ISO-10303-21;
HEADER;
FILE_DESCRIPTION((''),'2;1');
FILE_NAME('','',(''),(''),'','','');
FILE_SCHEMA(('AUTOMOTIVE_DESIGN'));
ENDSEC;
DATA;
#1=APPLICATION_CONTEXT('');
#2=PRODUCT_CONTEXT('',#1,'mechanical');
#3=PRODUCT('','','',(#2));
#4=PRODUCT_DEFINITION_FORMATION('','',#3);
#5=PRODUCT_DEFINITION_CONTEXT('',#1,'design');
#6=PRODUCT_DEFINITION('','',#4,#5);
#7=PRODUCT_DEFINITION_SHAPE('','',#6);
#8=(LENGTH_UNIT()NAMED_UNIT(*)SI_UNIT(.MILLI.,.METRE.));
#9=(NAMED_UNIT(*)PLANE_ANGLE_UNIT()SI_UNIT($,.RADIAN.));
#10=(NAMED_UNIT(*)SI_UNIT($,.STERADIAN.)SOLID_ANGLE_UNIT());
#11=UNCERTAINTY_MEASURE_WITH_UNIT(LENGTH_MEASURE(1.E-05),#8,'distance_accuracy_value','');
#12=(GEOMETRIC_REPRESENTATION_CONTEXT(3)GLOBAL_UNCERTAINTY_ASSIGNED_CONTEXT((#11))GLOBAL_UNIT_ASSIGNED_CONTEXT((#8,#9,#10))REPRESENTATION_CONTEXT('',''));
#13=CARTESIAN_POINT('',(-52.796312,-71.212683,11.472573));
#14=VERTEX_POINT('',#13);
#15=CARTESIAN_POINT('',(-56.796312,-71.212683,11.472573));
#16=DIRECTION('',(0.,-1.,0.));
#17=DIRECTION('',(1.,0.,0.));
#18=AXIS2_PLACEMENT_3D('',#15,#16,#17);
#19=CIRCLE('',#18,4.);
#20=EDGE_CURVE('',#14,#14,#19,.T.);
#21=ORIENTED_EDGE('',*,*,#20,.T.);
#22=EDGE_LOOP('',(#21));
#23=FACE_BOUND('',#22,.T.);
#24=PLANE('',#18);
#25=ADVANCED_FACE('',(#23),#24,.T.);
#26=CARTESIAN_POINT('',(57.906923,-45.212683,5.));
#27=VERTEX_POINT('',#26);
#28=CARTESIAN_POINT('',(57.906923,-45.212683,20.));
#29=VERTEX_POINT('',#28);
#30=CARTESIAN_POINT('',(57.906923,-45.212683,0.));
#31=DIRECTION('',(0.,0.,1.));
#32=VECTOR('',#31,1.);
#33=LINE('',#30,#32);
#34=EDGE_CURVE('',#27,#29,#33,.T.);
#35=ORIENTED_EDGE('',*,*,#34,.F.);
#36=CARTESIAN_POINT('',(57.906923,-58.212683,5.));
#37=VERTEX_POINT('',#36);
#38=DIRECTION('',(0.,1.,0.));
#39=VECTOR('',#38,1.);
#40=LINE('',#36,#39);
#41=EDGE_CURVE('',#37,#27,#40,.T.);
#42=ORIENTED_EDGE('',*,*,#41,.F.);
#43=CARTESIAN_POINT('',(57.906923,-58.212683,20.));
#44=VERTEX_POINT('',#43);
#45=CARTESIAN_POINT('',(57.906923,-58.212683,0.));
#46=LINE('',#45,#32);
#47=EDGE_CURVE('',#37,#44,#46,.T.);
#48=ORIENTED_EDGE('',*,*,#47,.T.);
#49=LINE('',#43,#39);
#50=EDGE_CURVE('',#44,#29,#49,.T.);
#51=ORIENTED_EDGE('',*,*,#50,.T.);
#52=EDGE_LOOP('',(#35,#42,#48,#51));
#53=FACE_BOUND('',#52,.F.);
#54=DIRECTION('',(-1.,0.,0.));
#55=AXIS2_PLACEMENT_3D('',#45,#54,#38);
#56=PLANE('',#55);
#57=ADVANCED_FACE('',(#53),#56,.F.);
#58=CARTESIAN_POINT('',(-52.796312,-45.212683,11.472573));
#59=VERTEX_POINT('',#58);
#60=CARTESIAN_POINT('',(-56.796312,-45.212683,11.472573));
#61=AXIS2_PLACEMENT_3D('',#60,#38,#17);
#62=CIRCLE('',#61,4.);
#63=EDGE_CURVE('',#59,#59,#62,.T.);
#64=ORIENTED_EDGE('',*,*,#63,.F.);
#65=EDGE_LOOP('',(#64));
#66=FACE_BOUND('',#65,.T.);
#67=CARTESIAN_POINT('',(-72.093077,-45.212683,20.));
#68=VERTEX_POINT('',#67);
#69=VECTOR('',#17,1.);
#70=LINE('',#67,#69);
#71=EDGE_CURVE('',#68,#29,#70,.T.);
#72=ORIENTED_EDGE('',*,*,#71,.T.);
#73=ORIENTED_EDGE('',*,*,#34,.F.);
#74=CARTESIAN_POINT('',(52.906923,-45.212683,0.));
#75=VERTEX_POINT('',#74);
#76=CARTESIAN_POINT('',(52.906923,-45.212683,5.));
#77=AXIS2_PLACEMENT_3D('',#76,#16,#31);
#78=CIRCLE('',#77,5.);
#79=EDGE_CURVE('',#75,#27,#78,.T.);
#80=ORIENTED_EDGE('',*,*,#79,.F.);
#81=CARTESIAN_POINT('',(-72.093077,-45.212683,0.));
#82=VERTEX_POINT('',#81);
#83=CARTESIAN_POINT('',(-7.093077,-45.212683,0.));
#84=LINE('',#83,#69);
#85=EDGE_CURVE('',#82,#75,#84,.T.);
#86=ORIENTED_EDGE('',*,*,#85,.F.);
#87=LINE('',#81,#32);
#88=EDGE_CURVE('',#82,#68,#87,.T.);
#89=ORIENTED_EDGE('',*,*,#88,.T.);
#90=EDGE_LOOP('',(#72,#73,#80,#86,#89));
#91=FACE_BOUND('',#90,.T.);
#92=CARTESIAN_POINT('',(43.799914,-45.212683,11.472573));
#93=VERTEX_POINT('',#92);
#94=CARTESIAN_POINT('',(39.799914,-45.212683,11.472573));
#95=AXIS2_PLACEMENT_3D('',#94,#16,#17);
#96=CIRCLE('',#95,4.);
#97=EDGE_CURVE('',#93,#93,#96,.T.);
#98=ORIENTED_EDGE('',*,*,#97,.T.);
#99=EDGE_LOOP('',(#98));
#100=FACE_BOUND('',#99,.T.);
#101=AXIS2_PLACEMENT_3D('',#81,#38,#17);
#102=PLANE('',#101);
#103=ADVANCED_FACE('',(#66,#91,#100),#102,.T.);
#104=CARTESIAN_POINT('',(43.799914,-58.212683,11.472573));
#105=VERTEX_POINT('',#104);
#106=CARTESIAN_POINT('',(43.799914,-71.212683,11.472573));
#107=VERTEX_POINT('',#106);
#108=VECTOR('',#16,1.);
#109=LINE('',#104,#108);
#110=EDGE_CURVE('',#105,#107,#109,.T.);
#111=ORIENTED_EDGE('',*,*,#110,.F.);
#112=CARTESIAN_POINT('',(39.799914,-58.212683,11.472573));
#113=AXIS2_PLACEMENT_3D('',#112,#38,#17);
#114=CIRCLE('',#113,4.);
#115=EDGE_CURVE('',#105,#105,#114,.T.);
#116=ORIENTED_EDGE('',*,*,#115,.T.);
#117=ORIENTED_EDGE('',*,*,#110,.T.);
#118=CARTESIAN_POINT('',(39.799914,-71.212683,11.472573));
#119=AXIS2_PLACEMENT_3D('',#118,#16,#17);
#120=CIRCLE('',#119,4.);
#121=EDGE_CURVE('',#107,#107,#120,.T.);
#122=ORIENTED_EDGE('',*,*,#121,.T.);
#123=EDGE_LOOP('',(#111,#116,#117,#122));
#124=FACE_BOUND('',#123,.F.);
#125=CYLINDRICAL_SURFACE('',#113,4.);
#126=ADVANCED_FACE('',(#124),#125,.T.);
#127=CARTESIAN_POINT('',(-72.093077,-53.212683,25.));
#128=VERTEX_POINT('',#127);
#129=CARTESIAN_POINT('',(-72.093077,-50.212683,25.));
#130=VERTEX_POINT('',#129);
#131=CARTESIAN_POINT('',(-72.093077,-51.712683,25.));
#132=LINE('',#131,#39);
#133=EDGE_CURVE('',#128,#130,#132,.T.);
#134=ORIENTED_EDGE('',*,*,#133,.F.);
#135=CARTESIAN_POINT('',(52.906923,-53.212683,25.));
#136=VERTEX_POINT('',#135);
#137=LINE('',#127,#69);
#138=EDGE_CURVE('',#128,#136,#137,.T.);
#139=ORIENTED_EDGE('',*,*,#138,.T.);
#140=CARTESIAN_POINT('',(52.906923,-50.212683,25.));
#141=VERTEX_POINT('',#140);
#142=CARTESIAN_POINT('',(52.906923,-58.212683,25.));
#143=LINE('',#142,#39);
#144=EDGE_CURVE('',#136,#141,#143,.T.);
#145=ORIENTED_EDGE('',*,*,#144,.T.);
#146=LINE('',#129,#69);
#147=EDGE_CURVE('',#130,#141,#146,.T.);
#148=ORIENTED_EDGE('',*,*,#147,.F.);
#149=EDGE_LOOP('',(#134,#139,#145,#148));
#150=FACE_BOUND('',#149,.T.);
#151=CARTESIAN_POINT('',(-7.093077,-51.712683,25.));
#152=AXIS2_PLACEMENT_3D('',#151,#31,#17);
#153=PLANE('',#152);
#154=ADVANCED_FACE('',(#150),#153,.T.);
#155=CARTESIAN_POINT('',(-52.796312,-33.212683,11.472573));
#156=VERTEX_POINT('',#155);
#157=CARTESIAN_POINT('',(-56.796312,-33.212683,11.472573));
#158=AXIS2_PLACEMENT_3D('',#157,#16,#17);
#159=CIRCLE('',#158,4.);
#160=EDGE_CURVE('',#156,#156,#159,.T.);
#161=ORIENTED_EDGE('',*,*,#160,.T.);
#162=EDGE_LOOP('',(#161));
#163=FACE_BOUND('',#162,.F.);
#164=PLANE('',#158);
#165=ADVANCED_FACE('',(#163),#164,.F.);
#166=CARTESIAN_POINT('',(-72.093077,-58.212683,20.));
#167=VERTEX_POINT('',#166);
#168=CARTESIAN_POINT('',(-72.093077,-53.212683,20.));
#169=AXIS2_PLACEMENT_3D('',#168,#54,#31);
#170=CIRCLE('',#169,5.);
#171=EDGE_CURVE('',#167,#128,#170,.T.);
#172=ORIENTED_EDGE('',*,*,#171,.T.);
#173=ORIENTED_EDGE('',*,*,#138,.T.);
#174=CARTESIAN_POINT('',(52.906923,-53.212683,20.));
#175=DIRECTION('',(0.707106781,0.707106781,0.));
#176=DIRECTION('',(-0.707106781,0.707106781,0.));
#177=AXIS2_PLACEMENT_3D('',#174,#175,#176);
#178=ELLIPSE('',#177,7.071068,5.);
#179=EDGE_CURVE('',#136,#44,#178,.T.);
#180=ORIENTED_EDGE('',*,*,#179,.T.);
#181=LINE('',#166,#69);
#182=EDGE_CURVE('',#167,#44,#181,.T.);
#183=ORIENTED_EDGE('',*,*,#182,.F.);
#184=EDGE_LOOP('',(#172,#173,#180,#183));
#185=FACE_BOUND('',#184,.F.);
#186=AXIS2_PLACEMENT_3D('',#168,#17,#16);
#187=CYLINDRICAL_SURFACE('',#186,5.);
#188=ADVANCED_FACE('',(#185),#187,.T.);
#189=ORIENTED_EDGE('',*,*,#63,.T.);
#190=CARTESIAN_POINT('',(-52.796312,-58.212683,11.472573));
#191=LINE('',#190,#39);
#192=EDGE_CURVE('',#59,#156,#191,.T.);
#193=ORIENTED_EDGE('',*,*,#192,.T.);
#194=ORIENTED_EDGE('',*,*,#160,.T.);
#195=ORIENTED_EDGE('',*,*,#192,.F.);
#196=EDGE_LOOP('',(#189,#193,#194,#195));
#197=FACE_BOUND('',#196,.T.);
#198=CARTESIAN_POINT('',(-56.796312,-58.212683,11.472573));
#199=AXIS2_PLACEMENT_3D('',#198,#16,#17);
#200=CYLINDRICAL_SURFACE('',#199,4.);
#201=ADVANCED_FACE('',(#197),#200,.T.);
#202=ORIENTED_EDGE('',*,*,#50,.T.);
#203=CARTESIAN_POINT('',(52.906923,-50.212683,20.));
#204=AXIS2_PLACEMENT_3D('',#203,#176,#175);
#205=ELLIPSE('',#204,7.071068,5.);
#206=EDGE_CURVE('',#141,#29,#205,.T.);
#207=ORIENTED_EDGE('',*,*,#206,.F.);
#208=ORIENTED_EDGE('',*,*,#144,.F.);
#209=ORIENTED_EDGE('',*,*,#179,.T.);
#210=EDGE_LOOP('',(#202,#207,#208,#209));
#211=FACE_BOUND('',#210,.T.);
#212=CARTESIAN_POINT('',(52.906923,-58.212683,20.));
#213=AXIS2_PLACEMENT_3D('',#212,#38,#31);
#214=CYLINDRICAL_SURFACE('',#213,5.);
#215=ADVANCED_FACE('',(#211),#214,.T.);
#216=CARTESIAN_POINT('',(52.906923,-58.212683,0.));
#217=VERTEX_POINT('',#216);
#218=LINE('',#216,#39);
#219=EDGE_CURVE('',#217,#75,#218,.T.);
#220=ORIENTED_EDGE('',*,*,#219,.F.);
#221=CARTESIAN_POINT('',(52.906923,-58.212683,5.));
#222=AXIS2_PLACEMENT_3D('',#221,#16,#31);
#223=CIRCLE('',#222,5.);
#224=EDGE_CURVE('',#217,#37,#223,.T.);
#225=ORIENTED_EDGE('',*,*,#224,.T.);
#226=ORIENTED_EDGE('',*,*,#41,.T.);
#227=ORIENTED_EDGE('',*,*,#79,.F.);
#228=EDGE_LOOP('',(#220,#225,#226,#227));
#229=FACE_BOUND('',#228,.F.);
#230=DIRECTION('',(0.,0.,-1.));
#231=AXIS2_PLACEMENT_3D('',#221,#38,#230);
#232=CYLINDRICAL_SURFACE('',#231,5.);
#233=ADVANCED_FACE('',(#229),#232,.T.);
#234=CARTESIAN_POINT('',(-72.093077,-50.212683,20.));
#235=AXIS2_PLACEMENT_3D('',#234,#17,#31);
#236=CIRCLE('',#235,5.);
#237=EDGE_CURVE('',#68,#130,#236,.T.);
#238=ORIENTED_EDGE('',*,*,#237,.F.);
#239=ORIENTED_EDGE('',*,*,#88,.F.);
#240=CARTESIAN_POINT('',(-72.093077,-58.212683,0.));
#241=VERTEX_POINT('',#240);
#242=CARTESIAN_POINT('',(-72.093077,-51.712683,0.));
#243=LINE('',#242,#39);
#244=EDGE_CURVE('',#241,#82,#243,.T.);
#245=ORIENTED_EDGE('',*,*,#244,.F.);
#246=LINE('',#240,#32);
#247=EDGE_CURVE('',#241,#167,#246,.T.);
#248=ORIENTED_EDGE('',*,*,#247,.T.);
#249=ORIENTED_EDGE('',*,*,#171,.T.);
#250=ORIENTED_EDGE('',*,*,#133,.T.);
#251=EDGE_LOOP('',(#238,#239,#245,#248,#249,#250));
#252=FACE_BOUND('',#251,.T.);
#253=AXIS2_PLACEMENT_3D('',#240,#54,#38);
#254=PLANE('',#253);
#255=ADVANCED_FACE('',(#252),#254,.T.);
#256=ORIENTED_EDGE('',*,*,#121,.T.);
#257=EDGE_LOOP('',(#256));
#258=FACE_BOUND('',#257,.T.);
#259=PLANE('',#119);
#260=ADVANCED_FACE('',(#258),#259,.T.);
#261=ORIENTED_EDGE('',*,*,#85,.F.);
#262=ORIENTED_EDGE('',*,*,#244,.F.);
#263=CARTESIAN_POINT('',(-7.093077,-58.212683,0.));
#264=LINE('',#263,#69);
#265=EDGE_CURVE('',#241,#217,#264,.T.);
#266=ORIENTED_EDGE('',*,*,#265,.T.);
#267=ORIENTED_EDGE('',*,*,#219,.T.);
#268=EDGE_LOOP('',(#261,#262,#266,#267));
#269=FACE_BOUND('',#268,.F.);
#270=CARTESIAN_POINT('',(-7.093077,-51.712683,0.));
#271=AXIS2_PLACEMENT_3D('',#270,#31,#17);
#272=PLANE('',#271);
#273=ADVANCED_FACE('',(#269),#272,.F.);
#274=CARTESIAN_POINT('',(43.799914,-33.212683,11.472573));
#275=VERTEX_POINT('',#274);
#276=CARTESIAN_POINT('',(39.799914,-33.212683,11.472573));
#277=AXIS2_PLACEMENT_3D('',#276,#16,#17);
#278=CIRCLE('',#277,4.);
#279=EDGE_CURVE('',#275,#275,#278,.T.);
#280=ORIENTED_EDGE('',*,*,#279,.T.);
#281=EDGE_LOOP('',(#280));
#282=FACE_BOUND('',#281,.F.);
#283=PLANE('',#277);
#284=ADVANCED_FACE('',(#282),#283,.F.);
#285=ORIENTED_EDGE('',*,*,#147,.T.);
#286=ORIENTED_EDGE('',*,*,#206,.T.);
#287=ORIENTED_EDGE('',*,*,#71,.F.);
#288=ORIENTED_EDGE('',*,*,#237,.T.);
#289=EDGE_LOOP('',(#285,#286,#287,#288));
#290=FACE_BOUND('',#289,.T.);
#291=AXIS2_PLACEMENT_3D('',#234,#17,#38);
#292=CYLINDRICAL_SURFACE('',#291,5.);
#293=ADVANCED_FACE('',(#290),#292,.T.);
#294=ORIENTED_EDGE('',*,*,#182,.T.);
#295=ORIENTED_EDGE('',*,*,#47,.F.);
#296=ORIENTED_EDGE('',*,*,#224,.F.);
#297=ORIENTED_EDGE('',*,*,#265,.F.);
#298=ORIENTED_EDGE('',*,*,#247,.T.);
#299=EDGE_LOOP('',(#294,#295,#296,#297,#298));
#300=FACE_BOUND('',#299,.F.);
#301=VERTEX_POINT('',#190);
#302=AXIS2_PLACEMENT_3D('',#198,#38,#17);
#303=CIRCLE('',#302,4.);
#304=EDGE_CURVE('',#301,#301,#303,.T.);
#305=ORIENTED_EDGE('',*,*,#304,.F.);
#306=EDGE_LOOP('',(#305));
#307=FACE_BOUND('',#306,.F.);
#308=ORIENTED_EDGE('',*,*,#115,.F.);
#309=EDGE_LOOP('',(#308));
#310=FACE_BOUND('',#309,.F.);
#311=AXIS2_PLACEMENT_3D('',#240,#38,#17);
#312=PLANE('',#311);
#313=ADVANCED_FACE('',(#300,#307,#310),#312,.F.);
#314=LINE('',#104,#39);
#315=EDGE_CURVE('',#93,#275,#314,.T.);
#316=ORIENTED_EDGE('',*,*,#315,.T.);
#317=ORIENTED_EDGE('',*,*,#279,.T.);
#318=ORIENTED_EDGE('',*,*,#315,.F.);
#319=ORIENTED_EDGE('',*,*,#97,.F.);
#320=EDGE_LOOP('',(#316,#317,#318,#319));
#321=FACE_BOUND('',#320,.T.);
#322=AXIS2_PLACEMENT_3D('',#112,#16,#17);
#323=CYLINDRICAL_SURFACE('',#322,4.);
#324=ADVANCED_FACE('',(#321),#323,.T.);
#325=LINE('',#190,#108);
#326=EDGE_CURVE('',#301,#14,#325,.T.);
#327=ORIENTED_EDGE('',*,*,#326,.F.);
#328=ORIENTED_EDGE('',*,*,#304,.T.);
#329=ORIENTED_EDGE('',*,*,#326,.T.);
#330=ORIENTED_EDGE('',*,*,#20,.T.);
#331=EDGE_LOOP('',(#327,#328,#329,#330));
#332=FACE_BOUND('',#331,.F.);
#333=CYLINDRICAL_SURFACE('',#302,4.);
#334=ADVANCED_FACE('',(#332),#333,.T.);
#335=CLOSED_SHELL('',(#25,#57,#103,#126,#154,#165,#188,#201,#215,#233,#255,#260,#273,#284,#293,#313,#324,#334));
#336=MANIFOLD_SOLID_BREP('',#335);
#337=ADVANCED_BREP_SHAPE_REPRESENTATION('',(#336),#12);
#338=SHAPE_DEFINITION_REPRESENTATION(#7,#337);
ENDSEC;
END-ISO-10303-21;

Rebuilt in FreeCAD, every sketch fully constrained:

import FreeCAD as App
import Part
import Sketcher
Q = App.Units.Quantity


def edges_at(feature, points):
    """Names of the edges that pass closest to the given points."""
    edges = feature.Shape.Edges
    near = lambda p: min(range(len(edges)), key=lambda i: edges[i].distToShape(Part.Vertex(*p))[0])
    return sorted({f"Edge{near(p) + 1}" for p in points})

doc = App.newDocument("Part")
body = doc.addObject("PartDesign::Body", "Body")

sketch1 = body.newObject("Sketcher::SketchObject", "Sketch")
sketch1.AttachmentSupport = (doc.getObject("XY_Plane"), [""])
sketch1.MapMode = "FlatFace"
sketch1.addGeometry(Part.LineSegment(App.Vector(-72.093077, -45.212683, 0), App.Vector(-72.093077, -58.212683, 0)), False)
sketch1.addGeometry(Part.LineSegment(App.Vector(-72.093077, -58.212683, 0), App.Vector(57.906923, -58.212683, 0)), False)
sketch1.addGeometry(Part.LineSegment(App.Vector(57.906923, -58.212683, 0), App.Vector(57.906923, -45.212683, 0)), False)
sketch1.addGeometry(Part.LineSegment(App.Vector(57.906923, -45.212683, 0), App.Vector(-72.093077, -45.212683, 0)), False)
sketch1.addConstraint(Sketcher.Constraint("Coincident", 0, 2, 1, 1))
sketch1.addConstraint(Sketcher.Constraint("Coincident", 1, 2, 2, 1))
sketch1.addConstraint(Sketcher.Constraint("Coincident", 2, 2, 3, 1))
sketch1.addConstraint(Sketcher.Constraint("Coincident", 3, 2, 0, 1))
sketch1.addConstraint(Sketcher.Constraint("Vertical", 0))
sketch1.addConstraint(Sketcher.Constraint("Horizontal", 1))
sketch1.addConstraint(Sketcher.Constraint("Vertical", 2))
sketch1.addConstraint(Sketcher.Constraint("Horizontal", 3))
sketch1.addConstraint(Sketcher.Constraint("DistanceX", 1, 1, 1, 2, Q("130 mm")))
sketch1.addConstraint(Sketcher.Constraint("DistanceY", 0, 2, 0, 1, Q("13 mm")))
sketch1.addConstraint(Sketcher.Constraint("DistanceX", 0, 2, -1, 1, Q("72.093077 mm")))
sketch1.addConstraint(Sketcher.Constraint("DistanceY", 0, 2, -1, 1, Q("58.212683 mm")))
pad1 = body.newObject("PartDesign::Pad", "Pad")
pad1.Profile = sketch1
pad1.Length = 25

sketch2 = body.newObject("Sketcher::SketchObject", "Sketch001")
sketch2.AttachmentSupport = (doc.getObject("XZ_Plane"), [""])
sketch2.MapMode = "FlatFace"
sketch2.AttachmentOffset = App.Placement(App.Vector(0, 0, 45.212683), App.Rotation())
sketch2.addGeometry(Part.Circle(App.Vector(39.799914, 11.472573, 0), App.Vector(0, 0, 1), 4), False)
sketch2.addGeometry(Part.Circle(App.Vector(-56.796312, 11.472573, 0), App.Vector(0, 0, 1), 4), False)
sketch2.addConstraint(Sketcher.Constraint("Equal", 0, 1))
sketch2.addConstraint(Sketcher.Constraint("Horizontal", 0, 3, 1, 3))
sketch2.addConstraint(Sketcher.Constraint("Diameter", 0, Q("8 mm")))
sketch2.addConstraint(Sketcher.Constraint("DistanceX", -1, 1, 0, 3, Q("39.799914 mm")))
sketch2.addConstraint(Sketcher.Constraint("DistanceY", -1, 1, 0, 3, Q("11.472573 mm")))
sketch2.addConstraint(Sketcher.Constraint("DistanceX", 1, 3, -1, 1, Q("56.796312 mm")))
pad2 = body.newObject("PartDesign::Pad", "Pad001")
pad2.Profile = sketch2
pad2.Length = 25
pad2.Reversed = True

sketch3 = body.newObject("Sketcher::SketchObject", "Sketch002")
sketch3.AttachmentSupport = (doc.getObject("XZ_Plane"), [""])
sketch3.MapMode = "FlatFace"
sketch3.AttachmentOffset = App.Placement(App.Vector(0, 0, 20.212683), App.Rotation())
sketch3.addGeometry(Part.Circle(App.Vector(39.799914, 11.472573, 0), App.Vector(0, 0, 1), 4), False)
sketch3.addGeometry(Part.Circle(App.Vector(-56.796312, 11.472573, 0), App.Vector(0, 0, 1), 4), False)
sketch3.addConstraint(Sketcher.Constraint("Equal", 0, 1))
sketch3.addConstraint(Sketcher.Constraint("Horizontal", 0, 3, 1, 3))
sketch3.addConstraint(Sketcher.Constraint("Diameter", 0, Q("8 mm")))
sketch3.addConstraint(Sketcher.Constraint("DistanceX", -1, 1, 0, 3, Q("39.799914 mm")))
sketch3.addConstraint(Sketcher.Constraint("DistanceY", -1, 1, 0, 3, Q("11.472573 mm")))
sketch3.addConstraint(Sketcher.Constraint("DistanceX", 1, 3, -1, 1, Q("56.796312 mm")))
pocket1 = body.newObject("PartDesign::Pocket", "Pocket")
pocket1.Profile = sketch3
pocket1.Length = 99.4
pocket1.Reversed = True
doc.recompute()

fillet = body.newObject("PartDesign::Fillet", "Fillet")
fillet.Base = (pocket1, edges_at(pocket1, [
    (57.907, -51.713, 25),
    (57.907, -51.713, 0),
    (-7.093, -58.213, 25),
    (-7.093, -45.213, 25),
]))
fillet.Radius = 5

sketch4 = body.newObject("Sketcher::SketchObject", "Sketch003")
sketch4.AttachmentSupport = (doc.getObject("XZ_Plane"), [""])
sketch4.MapMode = "FlatFace"
sketch4.AttachmentOffset = App.Placement(App.Vector(0, 0, 58.212683), App.Rotation())
sketch4.addGeometry(Part.Circle(App.Vector(-56.796312, 11.472573, 0), App.Vector(0, 0, 1), 4), False)
sketch4.addGeometry(Part.Circle(App.Vector(39.799914, 11.472573, 0), App.Vector(0, 0, 1), 4), False)
sketch4.addConstraint(Sketcher.Constraint("Equal", 0, 1))
sketch4.addConstraint(Sketcher.Constraint("Horizontal", 0, 3, 1, 3))
sketch4.addConstraint(Sketcher.Constraint("Diameter", 0, Q("8 mm")))
sketch4.addConstraint(Sketcher.Constraint("DistanceX", 0, 3, -1, 1, Q("56.796312 mm")))
sketch4.addConstraint(Sketcher.Constraint("DistanceY", -1, 1, 0, 3, Q("11.472573 mm")))
sketch4.addConstraint(Sketcher.Constraint("DistanceX", -1, 1, 1, 3, Q("39.799914 mm")))
pad3 = body.newObject("PartDesign::Pad", "Pad002")
pad3.Profile = sketch4
pad3.Type = "TwoLengths"
pad3.Length = 13
pad3.Length2 = 25

doc.recompute()
